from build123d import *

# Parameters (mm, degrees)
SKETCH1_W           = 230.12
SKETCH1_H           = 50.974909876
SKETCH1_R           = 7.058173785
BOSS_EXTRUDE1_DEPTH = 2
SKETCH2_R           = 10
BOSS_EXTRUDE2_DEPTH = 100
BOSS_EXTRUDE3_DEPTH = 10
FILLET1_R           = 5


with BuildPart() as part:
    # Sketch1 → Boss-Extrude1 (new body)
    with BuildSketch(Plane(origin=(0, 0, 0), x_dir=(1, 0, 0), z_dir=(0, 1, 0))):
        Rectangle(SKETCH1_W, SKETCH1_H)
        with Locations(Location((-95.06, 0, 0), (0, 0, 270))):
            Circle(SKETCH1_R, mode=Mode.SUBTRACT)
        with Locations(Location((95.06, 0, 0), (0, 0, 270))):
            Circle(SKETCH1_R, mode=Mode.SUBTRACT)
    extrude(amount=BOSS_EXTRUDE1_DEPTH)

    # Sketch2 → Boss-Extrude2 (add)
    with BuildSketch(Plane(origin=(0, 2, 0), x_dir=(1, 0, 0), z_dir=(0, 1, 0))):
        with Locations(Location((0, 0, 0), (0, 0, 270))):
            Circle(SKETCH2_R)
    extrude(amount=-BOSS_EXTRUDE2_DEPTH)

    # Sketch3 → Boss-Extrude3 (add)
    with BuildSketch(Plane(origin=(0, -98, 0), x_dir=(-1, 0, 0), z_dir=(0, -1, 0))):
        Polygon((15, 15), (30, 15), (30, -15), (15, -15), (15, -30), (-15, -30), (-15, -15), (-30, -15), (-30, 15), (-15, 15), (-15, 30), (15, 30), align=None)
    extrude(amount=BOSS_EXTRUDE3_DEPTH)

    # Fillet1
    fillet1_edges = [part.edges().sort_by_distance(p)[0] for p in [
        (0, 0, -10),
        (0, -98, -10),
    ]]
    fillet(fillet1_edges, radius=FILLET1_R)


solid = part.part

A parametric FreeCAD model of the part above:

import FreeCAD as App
import Part
import Sketcher


def edges_at(feature, points):
    """Names of the edges that pass closest to the given points."""
    edges = feature.Shape.Edges
    near = lambda p: min(range(len(edges)), key=lambda i: edges[i].distToShape(Part.Vertex(*p))[0])
    return sorted({f"Edge{near(p) + 1}" for p in points})

doc = App.newDocument("Part")
params = doc.addObject("Spreadsheet::Sheet", "Params")
for row, (alias, value) in enumerate([
    ("sketch1_width", "230.12 mm"),
    ("pad1_length", "2 mm"),
    ("sketch2_diameter", "20 mm"),
    ("pad2_length", "100 mm"),
    ("sketch3_width", "15 mm"),
    ("sketch3_width2", "30 mm"),
    ("pad3_length", "10 mm"),
    ("fillet_radius", "5 mm"),
], start=1):
    params.set(f"A{row}", alias)
    params.set(f"B{row}", "=" + value)
    params.setAlias(f"B{row}", alias)

body = doc.addObject("PartDesign::Body", "Body")

# Sketch on XZ plane
sketch1 = body.newObject("Sketcher::SketchObject", "Sketch")
sketch1.AttachmentSupport = (doc.getObject("XZ_Plane"), [""])
sketch1.MapMode = "FlatFace"
sketch1.addGeometry(Part.LineSegment(App.Vector(-115, -25, 0), App.Vector(-115, 25, 0)), False)
sketch1.addGeometry(Part.LineSegment(App.Vector(-115, 25, 0), App.Vector(115, 25, 0)), False)
sketch1.addGeometry(Part.LineSegment(App.Vector(115, 25, 0), App.Vector(115, -25, 0)), False)
sketch1.addGeometry(Part.LineSegment(App.Vector(115, -25, 0), App.Vector(-115, -25, 0)), False)
sketch1.addGeometry(Part.Circle(App.Vector(-95, 0, 0), App.Vector(0, 0, 1), 7), False)
sketch1.addGeometry(Part.Circle(App.Vector(95, 0, 0), App.Vector(0, 0, 1), 7), False)
sketch1.addConstraint(Sketcher.Constraint("Coincident", 0, 2, 1, 1))
sketch1.addConstraint(Sketcher.Constraint("Coincident", 1, 2, 2, 1))
sketch1.addConstraint(Sketcher.Constraint("Coincident", 2, 2, 3, 1))
sketch1.addConstraint(Sketcher.Constraint("Coincident", 3, 2, 0, 1))
sketch1.addConstraint(Sketcher.Constraint("Vertical", 0))
sketch1.addConstraint(Sketcher.Constraint("Horizontal", 1))
sketch1.addConstraint(Sketcher.Constraint("Vertical", 2))
sketch1.addConstraint(Sketcher.Constraint("Horizontal", 3))
sketch1.addConstraint(Sketcher.Constraint("Equal", 4, 5))
sketch1.addConstraint(Sketcher.Constraint("Symmetric", 4, 3, 5, 3, -1, 1))
sketch1.addConstraint(Sketcher.Constraint("Symmetric", 0, 2, 2, 2, -1, 1))
sketch1.addConstraint(Sketcher.Constraint("PointOnObject", 4, 3, -1))
sketch1.addConstraint(Sketcher.Constraint("DistanceX", 0, 2, 4, 3, 20.0))
sketch1.addConstraint(Sketcher.Constraint("DistanceX", 1, 1, 1, 2, 230.12))
sketch1.addConstraint(Sketcher.Constraint("Diameter", 4, 14.116348))
sketch1.addConstraint(Sketcher.Constraint("DistanceY", 0, 1, 0, 2, 50.97491))
sketch1.setExpression("Constraints[13]", "Params.sketch1_width")
pad1 = body.newObject("PartDesign::Pad", "Pad")
pad1.Profile = sketch1
pad1.setExpression("Length", "Params.pad1_length")
pad1.Reversed = True

# Sketch on XZ plane
sketch2 = body.newObject("Sketcher::SketchObject", "Sketch001")
sketch2.AttachmentSupport = (doc.getObject("XZ_Plane"), [""])
sketch2.MapMode = "FlatFace"
sketch2.AttachmentOffset = App.Placement(App.Vector(0, 0, -2), App.Rotation())
sketch2.addGeometry(Part.Circle(App.Vector(0, 0, 0), App.Vector(0, 0, 1), 10), False)
sketch2.addConstraint(Sketcher.Constraint("Coincident", 0, 3, -1, 1))
sketch2.addConstraint(Sketcher.Constraint("Diameter", 0, 20.0))
sketch2.setExpression("Constraints[1]", "Params.sketch2_diameter")
pad2 = body.newObject("PartDesign::Pad", "Pad001")
pad2.Profile = sketch2
pad2.setExpression("Length", "Params.pad2_length")

# Sketch on XZ plane
sketch3 = body.newObject("Sketcher::SketchObject", "Sketch002")
sketch3.AttachmentSupport = (doc.getObject("XZ_Plane"), [""])
sketch3.MapMode = "FlatFace"
sketch3.AttachmentOffset = App.Placement(App.Vector(0, 0, 98), App.Rotation())
sketch3.addGeometry(Part.LineSegment(App.Vector(-30, -15, 0), App.Vector(-15, -15, 0)), False)
sketch3.addGeometry(Part.LineSegment(App.Vector(-15, -15, 0), App.Vector(-15, -30, 0)), False)
sketch3.addGeometry(Part.LineSegment(App.Vector(-15, -30, 0), App.Vector(15, -30, 0)), False)
sketch3.addGeometry(Part.LineSegment(App.Vector(15, -30, 0), App.Vector(15, -15, 0)), False)
sketch3.addGeometry(Part.LineSegment(App.Vector(15, -15, 0), App.Vector(30, -15, 0)), False)
sketch3.addGeometry(Part.LineSegment(App.Vector(30, -15, 0), App.Vector(30, 15, 0)), False)
sketch3.addGeometry(Part.LineSegment(App.Vector(30, 15, 0), App.Vector(15, 15, 0)), False)
sketch3.addGeometry(Part.LineSegment(App.Vector(15, 15, 0), App.Vector(15, 30, 0)), False)
sketch3.addGeometry(Part.LineSegment(App.Vector(15, 30, 0), App.Vector(-15, 30, 0)), False)
sketch3.addGeometry(Part.LineSegment(App.Vector(-15, 30, 0), App.Vector(-15, 15, 0)), False)
sketch3.addGeometry(Part.LineSegment(App.Vector(-15, 15, 0), App.Vector(-30, 15, 0)), False)
sketch3.addGeometry(Part.LineSegment(App.Vector(-30, 15, 0), App.Vector(-30, -15, 0)), False)
sketch3.addConstraint(Sketcher.Constraint("Coincident", 0, 2, 1, 1))
sketch3.addConstraint(Sketcher.Constraint("Coincident", 1, 2, 2, 1))
sketch3.addConstraint(Sketcher.Constraint("Coincident", 2, 2, 3, 1))
sketch3.addConstraint(Sketcher.Constraint("Coincident", 3, 2, 4, 1))
sketch3.addConstraint(Sketcher.Constraint("Coincident", 4, 2, 5, 1))
sketch3.addConstraint(Sketcher.Constraint("Coincident", 5, 2, 6, 1))
sketch3.addConstraint(Sketcher.Constraint("Coincident", 6, 2, 7, 1))
sketch3.addConstraint(Sketcher.Constraint("Coincident", 7, 2, 8, 1))
sketch3.addConstraint(Sketcher.Constraint("Coincident", 8, 2, 9, 1))
sketch3.addConstraint(Sketcher.Constraint("Coincident", 9, 2, 10, 1))
sketch3.addConstraint(Sketcher.Constraint("Coincident", 10, 2, 11, 1))
sketch3.addConstraint(Sketcher.Constraint("Coincident", 11, 2, 0, 1))
sketch3.addConstraint(Sketcher.Constraint("Horizontal", 0))
sketch3.addConstraint(Sketcher.Constraint("Vertical", 1))
sketch3.addConstraint(Sketcher.Constraint("Horizontal", 2))
sketch3.addConstraint(Sketcher.Constraint("Vertical", 3))
sketch3.addConstraint(Sketcher.Constraint("Horizontal", 4))
sketch3.addConstraint(Sketcher.Constraint("Vertical", 5))
sketch3.addConstraint(Sketcher.Constraint("Horizontal", 6))
sketch3.addConstraint(Sketcher.Constraint("Vertical", 7))
sketch3.addConstraint(Sketcher.Constraint("Horizontal", 8))
sketch3.addConstraint(Sketcher.Constraint("Vertical", 9))
sketch3.addConstraint(Sketcher.Constraint("Horizontal", 10))
sketch3.addConstraint(Sketcher.Constraint("Vertical", 11))
sketch3.addConstraint(Sketcher.Constraint("Symmetric", 0, 2, 6, 2, -1, 1))
sketch3.addConstraint(Sketcher.Constraint("Symmetric", 2, 2, 8, 2, -1, 1))
sketch3.addConstraint(Sketcher.Constraint("Symmetric", 4, 2, 10, 2, -1, 1))
sketch3.addConstraint(Sketcher.Constraint("Symmetric", 0, 2, 3, 2, -2))
sketch3.addConstraint(Sketcher.Constraint("Equal", 10, 1))
sketch3.addConstraint(Sketcher.Constraint("Equal", 8, 5))
sketch3.addConstraint(Sketcher.Constraint("DistanceX", 0, 1, 0, 2, 15.0))
sketch3.addConstraint(Sketcher.Constraint("DistanceX", 2, 1, 2, 2, 30.0))
sketch3.setExpression("Constraints[30]", "Params.sketch3_width")
sketch3.setExpression("Constraints[31]", "Params.sketch3_width2")
pad3 = body.newObject("PartDesign::Pad", "Pad002")
pad3.Profile = sketch3
pad3.setExpression("Length", "Params.pad3_length")
doc.recompute()

fillet = body.newObject("PartDesign::Fillet", "Fillet")
fillet.Base = (pad3, edges_at(pad3, [(0, 0, -10), (0, -98, -10)]))
fillet.setExpression("Radius", "Params.fillet_radius")

doc.recompute()
